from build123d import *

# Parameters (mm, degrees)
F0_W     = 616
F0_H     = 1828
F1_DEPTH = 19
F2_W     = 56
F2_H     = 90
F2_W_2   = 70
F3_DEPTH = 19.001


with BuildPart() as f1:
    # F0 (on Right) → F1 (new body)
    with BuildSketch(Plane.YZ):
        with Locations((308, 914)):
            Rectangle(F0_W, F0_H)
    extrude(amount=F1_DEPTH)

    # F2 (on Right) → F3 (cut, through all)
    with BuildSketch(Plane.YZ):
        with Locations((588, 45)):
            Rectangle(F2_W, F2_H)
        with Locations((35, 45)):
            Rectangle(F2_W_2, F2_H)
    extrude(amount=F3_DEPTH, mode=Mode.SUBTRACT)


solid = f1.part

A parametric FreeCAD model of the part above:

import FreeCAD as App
import Part
import Sketcher
Q = App.Units.Quantity


def add_polygon(sketch, points):
    """Adds a closed chain of lines whose ends are joined by coincident constraints."""
    first, n = sketch.GeometryCount, len(points)
    for a, b in zip(points, points[1:] + points[:1]):
        sketch.addGeometry(Part.LineSegment(App.Vector(*a, 0), App.Vector(*b, 0)), False)
    for i in range(n):
        sketch.addConstraint(Sketcher.Constraint("Coincident", first + i, 2, first + (i + 1) % n, 1))

doc = App.newDocument("Part")
body = doc.addObject("PartDesign::Body", "Body")

# Sketch on YZ plane
sketch1 = doc.addObject("Sketcher::SketchObject", "Sketch")
body.addObject(sketch1)
sketch1.AttachmentSupport = (doc.YZ_Plane, [""])
sketch1.MapMode = "FlatFace"
add_polygon(sketch1, [(0, 1828), (0, 0), (616, 0), (616, 1828)])  # lines 0-3
sketch1.addConstraint([
    Sketcher.Constraint("Vertical", 0),
    Sketcher.Constraint("Horizontal", 1),
    Sketcher.Constraint("Vertical", 2),
    Sketcher.Constraint("Horizontal", 3),
    Sketcher.Constraint("Coincident", 0, 2, -1, 1),
    Sketcher.Constraint("DistanceX", 1, 1, 1, 2, Q("616 mm")),
    Sketcher.Constraint("DistanceY", 0, 2, 0, 1, Q("1828 mm")),
])
pad1 = doc.addObject("PartDesign::Pad", "Pad")
body.addObject(pad1)
pad1.Profile = sketch1
pad1.Length = 19

# Sketch on YZ plane
sketch2 = doc.addObject("Sketcher::SketchObject", "Sketch001")
body.addObject(sketch2)
sketch2.AttachmentSupport = (doc.YZ_Plane, [""])
sketch2.MapMode = "FlatFace"
add_polygon(sketch2, [(560, 90), (560, 0), (616, 0), (616, 90)])  # lines 0-3
add_polygon(sketch2, [(0, 90), (0, 0), (70, 0), (70, 90)])  # lines 4-7
sketch2.addConstraint([
    Sketcher.Constraint("Vertical", 0),
    Sketcher.Constraint("Horizontal", 1),
    Sketcher.Constraint("Vertical", 2),
    Sketcher.Constraint("Horizontal", 3),
    Sketcher.Constraint("Vertical", 4),
    Sketcher.Constraint("Horizontal", 5),
    Sketcher.Constraint("Vertical", 6),
    Sketcher.Constraint("Horizontal", 7),
    Sketcher.Constraint("Coincident", 4, 2, -1, 1),
    Sketcher.Constraint("PointOnObject", 0, 2, -1),
    Sketcher.Constraint("Horizontal", 3, 2, 6, 2),
    Sketcher.Constraint("DistanceX", 1, 1, 1, 2, Q("56 mm")),
    Sketcher.Constraint("DistanceX", 5, 1, 5, 2, Q("70 mm")),
    Sketcher.Constraint("DistanceY", 0, 2, 0, 1, Q("90 mm")),
    Sketcher.Constraint("DistanceX", -1, 1, 0, 2, Q("560 mm")),
])
pocket1 = doc.addObject("PartDesign::Pocket", "Pocket")
body.addObject(pocket1)
pocket1.Profile = sketch2
pocket1.Type = "ThroughAll"
pocket1.Reversed = True

doc.recompute()
